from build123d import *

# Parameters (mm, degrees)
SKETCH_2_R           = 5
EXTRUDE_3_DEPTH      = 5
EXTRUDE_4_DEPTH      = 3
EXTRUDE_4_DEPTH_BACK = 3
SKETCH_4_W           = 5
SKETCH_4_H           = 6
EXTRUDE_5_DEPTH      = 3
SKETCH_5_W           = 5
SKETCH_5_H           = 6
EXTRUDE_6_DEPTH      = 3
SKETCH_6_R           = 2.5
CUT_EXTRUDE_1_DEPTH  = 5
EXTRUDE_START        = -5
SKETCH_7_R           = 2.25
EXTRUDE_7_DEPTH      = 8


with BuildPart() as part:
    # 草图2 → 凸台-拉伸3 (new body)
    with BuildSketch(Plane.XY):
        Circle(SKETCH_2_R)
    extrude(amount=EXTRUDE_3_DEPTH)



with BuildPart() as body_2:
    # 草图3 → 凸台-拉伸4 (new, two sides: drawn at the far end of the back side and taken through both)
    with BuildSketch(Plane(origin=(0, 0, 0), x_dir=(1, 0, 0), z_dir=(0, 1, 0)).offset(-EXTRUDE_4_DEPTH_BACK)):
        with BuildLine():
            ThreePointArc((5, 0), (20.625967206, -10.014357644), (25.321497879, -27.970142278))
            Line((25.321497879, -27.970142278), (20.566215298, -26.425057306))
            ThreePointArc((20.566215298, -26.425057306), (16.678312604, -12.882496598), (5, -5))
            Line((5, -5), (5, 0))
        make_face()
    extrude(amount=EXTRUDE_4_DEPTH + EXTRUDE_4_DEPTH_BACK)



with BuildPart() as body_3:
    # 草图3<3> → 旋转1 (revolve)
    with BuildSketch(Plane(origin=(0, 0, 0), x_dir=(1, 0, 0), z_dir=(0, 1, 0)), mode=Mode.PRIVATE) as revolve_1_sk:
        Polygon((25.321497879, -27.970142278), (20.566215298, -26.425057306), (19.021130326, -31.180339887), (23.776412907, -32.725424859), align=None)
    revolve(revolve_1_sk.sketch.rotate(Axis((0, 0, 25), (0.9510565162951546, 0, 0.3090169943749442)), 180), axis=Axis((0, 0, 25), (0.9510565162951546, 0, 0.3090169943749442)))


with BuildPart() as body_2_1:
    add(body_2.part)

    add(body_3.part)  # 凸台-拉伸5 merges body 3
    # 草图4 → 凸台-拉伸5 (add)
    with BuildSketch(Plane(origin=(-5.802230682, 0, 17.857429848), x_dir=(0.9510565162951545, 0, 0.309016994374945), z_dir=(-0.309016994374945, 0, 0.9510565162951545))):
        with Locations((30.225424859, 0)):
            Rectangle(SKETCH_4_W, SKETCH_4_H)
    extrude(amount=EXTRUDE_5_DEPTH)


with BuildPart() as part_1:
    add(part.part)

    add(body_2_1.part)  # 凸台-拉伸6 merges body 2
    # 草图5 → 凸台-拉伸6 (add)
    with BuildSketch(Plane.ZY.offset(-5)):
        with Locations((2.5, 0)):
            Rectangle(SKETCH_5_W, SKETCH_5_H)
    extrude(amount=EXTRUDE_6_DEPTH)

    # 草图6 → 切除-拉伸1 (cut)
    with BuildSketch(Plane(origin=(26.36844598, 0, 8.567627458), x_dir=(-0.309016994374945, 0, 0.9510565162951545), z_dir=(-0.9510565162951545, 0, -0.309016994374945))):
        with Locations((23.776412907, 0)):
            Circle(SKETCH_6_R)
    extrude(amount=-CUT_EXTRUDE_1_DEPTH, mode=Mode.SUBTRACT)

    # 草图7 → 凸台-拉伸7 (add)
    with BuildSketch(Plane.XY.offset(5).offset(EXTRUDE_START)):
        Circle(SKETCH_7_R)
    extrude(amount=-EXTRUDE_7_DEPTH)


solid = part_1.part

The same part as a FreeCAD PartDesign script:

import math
import FreeCAD as App
import Part
import Sketcher

V = App.Vector
Q = App.Units.Quantity

doc = App.newDocument("Part")
params = doc.addObject("Spreadsheet::Sheet", "Params")
for row, (alias, value) in enumerate([
    ("sketch1_diameter", "10 mm"),
    ("pad1_length", "5 mm"),
    ("sketch2_height", "5 mm"),
    ("sketch2_length", "5 mm"),
    ("pad2_length", "3 mm"),
    ("pad2_length2", "3 mm"),
    ("sketch3_length", "5 mm"),
    ("revolution_angle", "360 deg"),
    ("sketch4_width", "5 mm"),
    ("sketch4_height", "6 mm"),
    ("pad3_length", "3 mm"),
    ("sketch5_width", "6 mm"),
    ("sketch5_height", "5 mm"),
    ("pad4_length", "3 mm"),
    ("sketch6_diameter", "5 mm"),
    ("pocket1_length", "5 mm"),
    ("sketch7_diameter", "4.5 mm"),
    ("pad5_length", "8 mm"),
], start=1):
    params.set(f"A{row}", alias)
    params.set(f"B{row}", "=" + value)
    params.setAlias(f"B{row}", alias)

body = doc.addObject("PartDesign::Body", "Body")

sketch1 = body.newObject("Sketcher::SketchObject", "Sketch")
sketch1.AttachmentSupport = (doc.getObject("XY_Plane"), [""])
sketch1.MapMode = "FlatFace"
sketch1.addGeometry(Part.Circle(V(0, 0, 0), V(0, 0, 1), 5), False)
sketch1.addConstraint([
    Sketcher.Constraint("Coincident", 0, 3, -1, 1),
    Sketcher.Constraint("Diameter", 0, Q("10 mm")),
])
sketch1.setExpression("Constraints[1]", "Params.sketch1_diameter")
pad1 = body.newObject("PartDesign::Pad", "Pad")
pad1.Profile = sketch1
pad1.setExpression("Length", "Params.pad1_length")
body2 = doc.addObject("PartDesign::Body", "Body001")

sketch2 = body2.newObject("Sketcher::SketchObject", "Sketch001")
sketch2.AttachmentSupport = (doc.getObject("XZ_Plane001"), [""])
sketch2.MapMode = "FlatFace"
sketch2.addGeometry([
    Part.ArcOfCircle(Part.Circle(V(0, 25, 0), V(0, 0, 1), 25.5), math.radians(-79), math.radians(7)),
    Part.LineSegment(V(5, 0, 0), V(5, 5, 0)),
    Part.ArcOfCircle(Part.Circle(V(0, 25, 0), V(0, 0, 1), 20.6), math.radians(-76), math.radians(4)),
    Part.LineSegment(V(20.6, 26.4, 0), V(25.3, 28, 0)),
], False)
sketch2.addConstraint([
    Sketcher.Constraint("Coincident", 0, 1, 1, 1),
    Sketcher.Constraint("Coincident", 1, 2, 2, 1),
    Sketcher.Constraint("Coincident", 2, 2, 3, 1),
    Sketcher.Constraint("Coincident", 3, 2, 0, 2),
    Sketcher.Constraint("Vertical", 1),
    Sketcher.Constraint("Coincident", 2, 3, 0, 3),
    Sketcher.Constraint("PointOnObject", 0, 3, -2),
    Sketcher.Constraint("PointOnObject", 0, 1, -1),
    Sketcher.Constraint("DistanceY", 1, 1, 1, 2, Q("5 mm")),
    Sketcher.Constraint("Angle", 3, Q("18 deg")),
    Sketcher.Constraint("Distance", 3, Q("5 mm")),
    Sketcher.Constraint("DistanceY", -1, 1, 0, 3, Q("25 mm")),
    Sketcher.Constraint("DistanceX", -1, 1, 0, 1, Q("5 mm")),
])
sketch2.setExpression("Constraints[8]", "Params.sketch2_height")
sketch2.setExpression("Constraints[10]", "Params.sketch2_length")
pad2 = body2.newObject("PartDesign::Pad", "Pad001")
pad2.Profile = sketch2
pad2.Type = "TwoLengths"
pad2.setExpression("Length", "Params.pad2_length")
pad2.setExpression("Length2", "Params.pad2_length2")
pad2.Reversed = True
body3 = doc.addObject("PartDesign::Body", "Body002")

sketch3 = body3.newObject("Sketcher::SketchObject", "Sketch002")
sketch3.AttachmentSupport = (doc.getObject("XZ_Plane002"), [""])
sketch3.MapMode = "FlatFace"
sketch3.addGeometry([
    Part.LineSegment(V(25.3, 28, 0), V(20.6, 26.4, 0)),
    Part.LineSegment(V(20.6, 26.4, 0), V(19, 31.2, 0)),
    Part.LineSegment(V(19, 31.2, 0), V(23.8, 32.7, 0)),
    Part.LineSegment(V(23.8, 32.7, 0), V(25.3, 28, 0)),
], False)
sketch3.addGeometry(Part.LineSegment(V(19, 31.2, 0), V(23.8, 32.7, 0)), True)
sketch3.addConstraint([
    Sketcher.Constraint("Coincident", 0, 2, 1, 1),
    Sketcher.Constraint("Coincident", 1, 2, 2, 1),
    Sketcher.Constraint("Coincident", 2, 2, 3, 1),
    Sketcher.Constraint("Coincident", 3, 2, 0, 1),
    Sketcher.Constraint("Coincident", 4, 1, 1, 2),
    Sketcher.Constraint("Coincident", 4, 2, 2, 2),
    Sketcher.Constraint("Perpendicular", 0, 1),
    Sketcher.Constraint("Perpendicular", 1, 2),
    Sketcher.Constraint("Perpendicular", 2, 3),
    Sketcher.Constraint("Equal", 0, 1),
    Sketcher.Constraint("Angle", 0, Q("-162 deg")),
    Sketcher.Constraint("Distance", 0, Q("5 mm")),
    Sketcher.Constraint("DistanceX", -1, 1, 1, 2, Q("19.02113 mm")),
    Sketcher.Constraint("DistanceY", -1, 1, 1, 2, Q("31.18034 mm")),
])
sketch3.setExpression("Constraints[11]", "Params.sketch3_length")
revolution = body3.newObject("PartDesign::Revolution", "Revolution")
revolution.Profile = sketch3
revolution.ReferenceAxis = (sketch3, ["Axis0"])
revolution.setExpression("Angle", "Params.revolution_angle")
body2.AllowCompound = True
doc.recompute()

boolean = body2.newObject("PartDesign::Boolean", "Boolean")
boolean.Type = "Fuse"
boolean.addObjects([body3])

sketch4 = body2.newObject("Sketcher::SketchObject", "Sketch003")
sketch4.Placement = App.Placement(V(-5.802231, 0, 17.85743), App.Rotation(V(0.951056516, 0, 0.309016994), V(0, 0.999999999, 0), V(-0.309016994, 0, 0.951056516), "ZXY"))
sketch4.addGeometry([
    Part.LineSegment(V(27.7, 3, 0), V(27.7, -3, 0)),
    Part.LineSegment(V(27.7, -3, 0), V(32.7, -3, 0)),
    Part.LineSegment(V(32.7, -3, 0), V(32.7, 3, 0)),
    Part.LineSegment(V(32.7, 3, 0), V(27.7, 3, 0)),
], False)
sketch4.addConstraint([
    Sketcher.Constraint("Coincident", 0, 2, 1, 1),
    Sketcher.Constraint("Coincident", 1, 2, 2, 1),
    Sketcher.Constraint("Coincident", 2, 2, 3, 1),
    Sketcher.Constraint("Coincident", 3, 2, 0, 1),
    Sketcher.Constraint("Vertical", 0),
    Sketcher.Constraint("Horizontal", 1),
    Sketcher.Constraint("Vertical", 2),
    Sketcher.Constraint("Horizontal", 3),
    Sketcher.Constraint("DistanceX", 1, 1, 1, 2, Q("5 mm")),
    Sketcher.Constraint("DistanceY", 0, 2, 0, 1, Q("6 mm")),
    Sketcher.Constraint("DistanceY", 0, 2, -1, 1, Q("3 mm")),
    Sketcher.Constraint("DistanceX", -1, 1, 0, 2, Q("27.725425 mm")),
])
sketch4.setExpression("Constraints[8]", "Params.sketch4_width")
sketch4.setExpression("Constraints[9]", "Params.sketch4_height")
pad3 = body2.newObject("PartDesign::Pad", "Pad002")
pad3.Profile = sketch4
pad3.setExpression("Length", "Params.pad3_length")
body.AllowCompound = True
doc.recompute()

boolean2 = body.newObject("PartDesign::Boolean", "Boolean001")
boolean2.Type = "Fuse"
boolean2.addObjects([body2])

sketch5 = body.newObject("Sketcher::SketchObject", "Sketch004")
sketch5.AttachmentSupport = (doc.getObject("YZ_Plane"), [""])
sketch5.MapMode = "FlatFace"
sketch5.AttachmentOffset = App.Placement(V(0, 0, 5), App.Rotation())
sketch5.addGeometry([
    Part.LineSegment(V(3, 0, 0), V(-3, 0, 0)),
    Part.LineSegment(V(-3, 0, 0), V(-3, 5, 0)),
    Part.LineSegment(V(-3, 5, 0), V(3, 5, 0)),
    Part.LineSegment(V(3, 5, 0), V(3, 0, 0)),
], False)
sketch5.addConstraint([
    Sketcher.Constraint("Coincident", 0, 2, 1, 1),
    Sketcher.Constraint("Coincident", 1, 2, 2, 1),
    Sketcher.Constraint("Coincident", 2, 2, 3, 1),
    Sketcher.Constraint("Coincident", 3, 2, 0, 1),
    Sketcher.Constraint("Horizontal", 0),
    Sketcher.Constraint("Vertical", 1),
    Sketcher.Constraint("Horizontal", 2),
    Sketcher.Constraint("Vertical", 3),
    Sketcher.Constraint("Symmetric", 0, 2, 3, 2, -1, 1),
    Sketcher.Constraint("DistanceX", 0, 2, 0, 1, Q("6 mm")),
    Sketcher.Constraint("DistanceY", 1, 1, 1, 2, Q("5 mm")),
])
sketch5.setExpression("Constraints[9]", "Params.sketch5_width")
sketch5.setExpression("Constraints[10]", "Params.sketch5_height")
pad4 = body.newObject("PartDesign::Pad", "Pad003")
pad4.Profile = sketch5
pad4.setExpression("Length", "Params.pad4_length")
pad4.Reversed = True

sketch6 = body.newObject("Sketcher::SketchObject", "Sketch005")
sketch6.Placement = App.Placement(V(26.368446, 0, 8.567627), App.Rotation(V(-0.309016994, 0, 0.951056516), V(0, 0.999999999, 0), V(-0.951056516, 0, -0.309016994), "ZXY"))
sketch6.addGeometry(Part.Circle(V(23.8, 0, 0), V(0, 0, 1), 2.5), False)
sketch6.addConstraint([
    Sketcher.Constraint("PointOnObject", 0, 3, -1),
    Sketcher.Constraint("Diameter", 0, Q("5 mm")),
    Sketcher.Constraint("DistanceX", -1, 1, 0, 3, Q("23.776413 mm")),
])
sketch6.setExpression("Constraints[1]", "Params.sketch6_diameter")
pocket1 = body.newObject("PartDesign::Pocket", "Pocket")
pocket1.Profile = sketch6
pocket1.setExpression("Length", "Params.pocket1_length")

sketch7 = body.newObject("Sketcher::SketchObject", "Sketch006")
sketch7.AttachmentSupport = (doc.getObject("XY_Plane"), [""])
sketch7.MapMode = "FlatFace"
sketch7.addGeometry(Part.Circle(V(0, 0, 0), V(0, 0, 1), 2.2), False)
sketch7.addConstraint([
    Sketcher.Constraint("Coincident", 0, 3, -1, 1),
    Sketcher.Constraint("Diameter", 0, Q("4.5 mm")),
])
sketch7.setExpression("Constraints[1]", "Params.sketch7_diameter")
pad5 = body.newObject("PartDesign::Pad", "Pad004")
pad5.Profile = sketch7
pad5.setExpression("Length", "Params.pad5_length")
pad5.Reversed = True

doc.recompute()
